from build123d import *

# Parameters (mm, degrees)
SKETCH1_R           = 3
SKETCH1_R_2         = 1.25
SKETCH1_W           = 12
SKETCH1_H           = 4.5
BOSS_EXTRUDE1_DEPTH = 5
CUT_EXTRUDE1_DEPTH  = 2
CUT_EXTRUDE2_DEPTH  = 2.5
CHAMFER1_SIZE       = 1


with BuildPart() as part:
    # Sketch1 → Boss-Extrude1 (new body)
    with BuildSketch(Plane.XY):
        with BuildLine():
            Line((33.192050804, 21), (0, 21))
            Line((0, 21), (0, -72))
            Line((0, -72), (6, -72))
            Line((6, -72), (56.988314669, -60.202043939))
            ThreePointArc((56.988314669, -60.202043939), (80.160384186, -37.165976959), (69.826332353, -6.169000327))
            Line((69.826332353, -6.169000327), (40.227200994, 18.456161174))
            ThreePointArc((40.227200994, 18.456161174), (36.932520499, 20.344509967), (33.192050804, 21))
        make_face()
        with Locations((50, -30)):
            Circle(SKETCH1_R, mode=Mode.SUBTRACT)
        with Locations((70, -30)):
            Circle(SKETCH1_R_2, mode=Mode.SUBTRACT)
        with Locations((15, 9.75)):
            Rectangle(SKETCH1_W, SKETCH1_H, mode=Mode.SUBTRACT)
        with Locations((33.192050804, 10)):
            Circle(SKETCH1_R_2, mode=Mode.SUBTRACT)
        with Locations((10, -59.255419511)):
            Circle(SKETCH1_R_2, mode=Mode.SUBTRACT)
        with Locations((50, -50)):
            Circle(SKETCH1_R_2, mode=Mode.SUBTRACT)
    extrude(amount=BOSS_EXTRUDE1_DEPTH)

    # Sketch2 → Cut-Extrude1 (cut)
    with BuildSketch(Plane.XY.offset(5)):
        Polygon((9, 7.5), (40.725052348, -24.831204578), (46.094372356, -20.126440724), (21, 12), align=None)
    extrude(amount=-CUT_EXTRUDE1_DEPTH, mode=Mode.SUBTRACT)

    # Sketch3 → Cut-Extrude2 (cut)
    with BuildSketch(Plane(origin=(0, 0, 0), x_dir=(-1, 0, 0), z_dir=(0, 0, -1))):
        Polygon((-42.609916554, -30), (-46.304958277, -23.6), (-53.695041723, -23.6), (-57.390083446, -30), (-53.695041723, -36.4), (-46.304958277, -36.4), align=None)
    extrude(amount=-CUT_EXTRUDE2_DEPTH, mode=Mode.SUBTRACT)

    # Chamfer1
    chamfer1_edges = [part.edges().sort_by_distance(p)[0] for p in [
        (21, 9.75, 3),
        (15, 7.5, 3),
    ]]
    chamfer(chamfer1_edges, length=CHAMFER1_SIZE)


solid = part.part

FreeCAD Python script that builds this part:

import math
import FreeCAD as App
import Part
import Sketcher

V = App.Vector
Q = App.Units.Quantity


def edges_at(feature, points):
    """Names of the edges that pass closest to the given points."""
    edges = feature.Shape.Edges
    near = lambda p: min(range(len(edges)), key=lambda i: edges[i].distToShape(Part.Vertex(*p))[0])
    return sorted({f"Edge{near(p) + 1}" for p in points})


def add_polygon(sketch, points):
    """Adds a closed chain of lines whose ends are joined by coincident constraints."""
    first, n = sketch.GeometryCount, len(points)
    for a, b in zip(points, points[1:] + points[:1]):
        sketch.addGeometry(Part.LineSegment(App.Vector(*a, 0), App.Vector(*b, 0)), False)
    for i in range(n):
        sketch.addConstraint(Sketcher.Constraint("Coincident", first + i, 2, first + (i + 1) % n, 1))

doc = App.newDocument("Part")
params = doc.addObject("Spreadsheet::Sheet", "Params")
for row, (alias, value) in enumerate([
    ("sketch1_diameter", "6 mm"),
    ("sketch1_radius", "31 mm"),
    ("sketch1_radius2", "11 mm"),
    ("sketch1_diameter2", "2.5 mm"),
    ("sketch1_width", "6 mm"),
    ("pad1_length", "5 mm"),
    ("pocket1_length", "2 mm"),
    ("pocket2_length", "2.5 mm"),
    ("chamfer_size", "1 mm"),
], start=1):
    params.set(f"A{row}", alias)
    params.set(f"B{row}", "=" + value)
    params.setAlias(f"B{row}", alias)

body = doc.addObject("PartDesign::Body", "Body")

# Sketch on XY plane
sketch1 = body.newObject("Sketcher::SketchObject", "Sketch")
sketch1.AttachmentSupport = (doc.getObject("XY_Plane"), [""])
sketch1.MapMode = "FlatFace"
sketch1.addGeometry(Part.LineSegment(V(33.2, 21, 0), V(0, 21, 0)), False)  # 0
sketch1.addGeometry(Part.LineSegment(V(0, 21, 0), V(0, -72, 0)), False)  # 1
sketch1.addGeometry(Part.LineSegment(V(0, -72, 0), V(6, -72, 0)), False)  # 2
sketch1.addGeometry(Part.LineSegment(V(6, -72, 0), V(57, -60.2, 0)), False)  # 3
sketch1.addGeometry(Part.ArcOfCircle(Part.Circle(V(50, -30, 0), V(0, 0, 1), 31), math.radians(-77), math.radians(50)), False)  # 4
sketch1.addGeometry(Part.LineSegment(V(69.8, -6.2, 0), V(40.2, 18.5, 0)), False)  # 5
sketch1.addGeometry(Part.ArcOfCircle(Part.Circle(V(33.2, 10, 0), V(0, 0, 1), 11), math.radians(50), math.radians(90)), False)  # 6
sketch1.addGeometry(Part.Circle(V(10, -59.3, 0), V(0, 0, 1), 1.2), False)  # 7
sketch1.addGeometry(Part.Circle(V(50, -50, 0), V(0, 0, 1), 1.2), False)  # 8
sketch1.addGeometry(Part.Circle(V(50, -30, 0), V(0, 0, 1), 3), False)  # 9
sketch1.addGeometry(Part.Circle(V(70, -30, 0), V(0, 0, 1), 1.2), False)  # 10
add_polygon(sketch1, [(21, 7.5), (9, 7.5), (9, 12), (21, 12)])  # lines 11-14
sketch1.addGeometry(Part.Circle(V(33.2, 10, 0), V(0, 0, 1), 1.2), False)  # 15
sketch1.addConstraint(Sketcher.Constraint("Coincident", 0, 2, 1, 1))
sketch1.addConstraint(Sketcher.Constraint("Coincident", 1, 2, 2, 1))
sketch1.addConstraint(Sketcher.Constraint("Coincident", 2, 2, 3, 1))
sketch1.addConstraint(Sketcher.Constraint("Tangent", 3, 2, 4, 1))
sketch1.addConstraint(Sketcher.Constraint("Tangent", 4, 2, 5, 1))
sketch1.addConstraint(Sketcher.Constraint("Tangent", 5, 2, 6, 1))
sketch1.addConstraint(Sketcher.Constraint("Tangent", 6, 2, 0, 1))
sketch1.addConstraint(Sketcher.Constraint("Horizontal", 0))
sketch1.addConstraint(Sketcher.Constraint("Vertical", 1))
sketch1.addConstraint(Sketcher.Constraint("Horizontal", 2))
sketch1.addConstraint(Sketcher.Constraint("Horizontal", 11))
sketch1.addConstraint(Sketcher.Constraint("Vertical", 12))
sketch1.addConstraint(Sketcher.Constraint("Horizontal", 13))
sketch1.addConstraint(Sketcher.Constraint("Vertical", 14))
sketch1.addConstraint(Sketcher.Constraint("Coincident", 9, 3, 4, 3))
sketch1.addConstraint(Sketcher.Constraint("Coincident", 15, 3, 6, 3))
sketch1.addConstraint(Sketcher.Constraint("Equal", 7, 8))
sketch1.addConstraint(Sketcher.Constraint("Equal", 8, 10))
sketch1.addConstraint(Sketcher.Constraint("Equal", 10, 15))
sketch1.addConstraint(Sketcher.Constraint("PointOnObject", 0, 2, -2))
sketch1.addConstraint(Sketcher.Constraint("Horizontal", 9, 3, 10, 3))
sketch1.addConstraint(Sketcher.Constraint("Vertical", 4, 3, 8, 3))
sketch1.addConstraint(Sketcher.Constraint("Diameter", 9, Q("6 mm")))
sketch1.addConstraint(Sketcher.Constraint("Radius", 4, Q("31 mm")))
sketch1.addConstraint(Sketcher.Constraint("Radius", 6, Q("11 mm")))
sketch1.addConstraint(Sketcher.Constraint("Diameter", 7, Q("2.5 mm")))
sketch1.addConstraint(Sketcher.Constraint("DistanceX", 2, 1, 2, 2, Q("6 mm")))
sketch1.addConstraint(Sketcher.Constraint("DistanceX", 11, 2, 11, 1, Q("12 mm")))
sketch1.addConstraint(Sketcher.Constraint("DistanceY", 1, 2, 1, 1, Q("93 mm")))
sketch1.addConstraint(Sketcher.Constraint("DistanceY", 12, 1, 12, 2, Q("4.5 mm")))
sketch1.addConstraint(Sketcher.Constraint("DistanceX", -1, 1, 4, 3, Q("50 mm")))
sketch1.addConstraint(Sketcher.Constraint("DistanceY", 4, 3, -1, 1, Q("30 mm")))
sketch1.addConstraint(Sketcher.Constraint("DistanceY", -1, 1, 6, 3, Q("10 mm")))
sketch1.addConstraint(Sketcher.Constraint("DistanceX", -1, 1, 7, 3, Q("10 mm")))
sketch1.addConstraint(Sketcher.Constraint("DistanceY", 8, 3, -1, 1, Q("50 mm")))
sketch1.addConstraint(Sketcher.Constraint("DistanceX", -1, 1, 10, 3, Q("70 mm")))
sketch1.addConstraint(Sketcher.Constraint("DistanceX", -1, 1, 11, 2, Q("9 mm")))
sketch1.addConstraint(Sketcher.Constraint("DistanceY", -1, 1, 12, 2, Q("12 mm")))
sketch1.addConstraint(Sketcher.Constraint("DistanceY", 4, 2, -1, 1, Q("6.169 mm")))
sketch1.addConstraint(Sketcher.Constraint("DistanceY", 7, 3, -1, 1, Q("59.25542 mm")))
sketch1.setExpression("Constraints[26]", "Params.sketch1_diameter")
sketch1.setExpression("Constraints[27]", "Params.sketch1_radius")
sketch1.setExpression("Constraints[28]", "Params.sketch1_radius2")
sketch1.setExpression("Constraints[29]", "Params.sketch1_diameter2")
sketch1.setExpression("Constraints[30]", "Params.sketch1_width")
pad1 = body.newObject("PartDesign::Pad", "Pad")
pad1.Profile = sketch1
pad1.setExpression("Length", "Params.pad1_length")

# Sketch on XY plane
sketch2 = body.newObject("Sketcher::SketchObject", "Sketch001")
sketch2.AttachmentSupport = (doc.getObject("XY_Plane"), [""])
sketch2.MapMode = "FlatFace"
sketch2.AttachmentOffset = App.Placement(V(0, 0, 5), App.Rotation())
add_polygon(sketch2, [(9, 8), (41, -25), (46, -20), (21, 12)])  # lines 0-3
sketch2.addConstraint(Sketcher.Constraint("DistanceX", -1, 1, 2, 2, Q("21 mm")))
sketch2.addConstraint(Sketcher.Constraint("DistanceY", -1, 1, 2, 2, Q("12 mm")))
sketch2.addConstraint(Sketcher.Constraint("DistanceX", -1, 1, 3, 2, Q("9 mm")))
sketch2.addConstraint(Sketcher.Constraint("DistanceY", -1, 1, 3, 2, Q("7.5 mm")))
sketch2.addConstraint(Sketcher.Constraint("Distance", 0, Q("45.296642 mm")))
sketch2.addConstraint(Sketcher.Constraint("Distance", 2, Q("40.765619 mm")))
sketch2.addConstraint(Sketcher.Constraint("DistanceY", 1, 2, -1, 1, Q("20.126441 mm")))
sketch2.addConstraint(Sketcher.Constraint("DistanceX", 0, 2, 1, 2, Q("5.36932 mm")))
pocket1 = body.newObject("PartDesign::Pocket", "Pocket")
pocket1.Profile = sketch2
pocket1.setExpression("Length", "Params.pocket1_length")

# Sketch on XY plane
sketch3 = body.newObject("Sketcher::SketchObject", "Sketch002")
sketch3.AttachmentSupport = (doc.getObject("XY_Plane"), [""])
sketch3.MapMode = "FlatFace"
add_polygon(sketch3, [(43, -30), (46, -24), (54, -24), (57, -30), (54, -36), (46, -36)])  # lines 0-5
sketch3.addConstraint(Sketcher.Constraint("Horizontal", 1))
sketch3.addConstraint(Sketcher.Constraint("Horizontal", 4))
sketch3.addConstraint(Sketcher.Constraint("Parallel", 0, 3))
sketch3.addConstraint(Sketcher.Constraint("Parallel", 2, 5))
sketch3.addConstraint(Sketcher.Constraint("Horizontal", 2, 2, 5, 2))
sketch3.addConstraint(Sketcher.Constraint("Vertical", 1, 2, 3, 2))
sketch3.addConstraint(Sketcher.Constraint("Vertical", 0, 2, 4, 2))
sketch3.addConstraint(Sketcher.Constraint("Angle", 0, Q("60 deg")))
sketch3.addConstraint(Sketcher.Constraint("DistanceY", 2, 2, -1, 1, Q("30 mm")))
sketch3.addConstraint(Sketcher.Constraint("DistanceY", 0, 2, -1, 1, Q("23.6 mm")))
sketch3.addConstraint(Sketcher.Constraint("DistanceX", 1, 1, 1, 2, Q("7.390083 mm")))
sketch3.addConstraint(Sketcher.Constraint("DistanceX", -1, 1, 0, 2, Q("46.304958 mm")))
pocket2 = body.newObject("PartDesign::Pocket", "Pocket001")
pocket2.Profile = sketch3
pocket2.setExpression("Length", "Params.pocket2_length")
pocket2.Reversed = True
doc.recompute()

chamfer = body.newObject("PartDesign::Chamfer", "Chamfer")
chamfer.Base = (pocket2, edges_at(pocket2, [(21, 9.75, 3), (15, 7.5, 3)]))
chamfer.setExpression("Size", "Params.chamfer_size")

doc.recompute()
